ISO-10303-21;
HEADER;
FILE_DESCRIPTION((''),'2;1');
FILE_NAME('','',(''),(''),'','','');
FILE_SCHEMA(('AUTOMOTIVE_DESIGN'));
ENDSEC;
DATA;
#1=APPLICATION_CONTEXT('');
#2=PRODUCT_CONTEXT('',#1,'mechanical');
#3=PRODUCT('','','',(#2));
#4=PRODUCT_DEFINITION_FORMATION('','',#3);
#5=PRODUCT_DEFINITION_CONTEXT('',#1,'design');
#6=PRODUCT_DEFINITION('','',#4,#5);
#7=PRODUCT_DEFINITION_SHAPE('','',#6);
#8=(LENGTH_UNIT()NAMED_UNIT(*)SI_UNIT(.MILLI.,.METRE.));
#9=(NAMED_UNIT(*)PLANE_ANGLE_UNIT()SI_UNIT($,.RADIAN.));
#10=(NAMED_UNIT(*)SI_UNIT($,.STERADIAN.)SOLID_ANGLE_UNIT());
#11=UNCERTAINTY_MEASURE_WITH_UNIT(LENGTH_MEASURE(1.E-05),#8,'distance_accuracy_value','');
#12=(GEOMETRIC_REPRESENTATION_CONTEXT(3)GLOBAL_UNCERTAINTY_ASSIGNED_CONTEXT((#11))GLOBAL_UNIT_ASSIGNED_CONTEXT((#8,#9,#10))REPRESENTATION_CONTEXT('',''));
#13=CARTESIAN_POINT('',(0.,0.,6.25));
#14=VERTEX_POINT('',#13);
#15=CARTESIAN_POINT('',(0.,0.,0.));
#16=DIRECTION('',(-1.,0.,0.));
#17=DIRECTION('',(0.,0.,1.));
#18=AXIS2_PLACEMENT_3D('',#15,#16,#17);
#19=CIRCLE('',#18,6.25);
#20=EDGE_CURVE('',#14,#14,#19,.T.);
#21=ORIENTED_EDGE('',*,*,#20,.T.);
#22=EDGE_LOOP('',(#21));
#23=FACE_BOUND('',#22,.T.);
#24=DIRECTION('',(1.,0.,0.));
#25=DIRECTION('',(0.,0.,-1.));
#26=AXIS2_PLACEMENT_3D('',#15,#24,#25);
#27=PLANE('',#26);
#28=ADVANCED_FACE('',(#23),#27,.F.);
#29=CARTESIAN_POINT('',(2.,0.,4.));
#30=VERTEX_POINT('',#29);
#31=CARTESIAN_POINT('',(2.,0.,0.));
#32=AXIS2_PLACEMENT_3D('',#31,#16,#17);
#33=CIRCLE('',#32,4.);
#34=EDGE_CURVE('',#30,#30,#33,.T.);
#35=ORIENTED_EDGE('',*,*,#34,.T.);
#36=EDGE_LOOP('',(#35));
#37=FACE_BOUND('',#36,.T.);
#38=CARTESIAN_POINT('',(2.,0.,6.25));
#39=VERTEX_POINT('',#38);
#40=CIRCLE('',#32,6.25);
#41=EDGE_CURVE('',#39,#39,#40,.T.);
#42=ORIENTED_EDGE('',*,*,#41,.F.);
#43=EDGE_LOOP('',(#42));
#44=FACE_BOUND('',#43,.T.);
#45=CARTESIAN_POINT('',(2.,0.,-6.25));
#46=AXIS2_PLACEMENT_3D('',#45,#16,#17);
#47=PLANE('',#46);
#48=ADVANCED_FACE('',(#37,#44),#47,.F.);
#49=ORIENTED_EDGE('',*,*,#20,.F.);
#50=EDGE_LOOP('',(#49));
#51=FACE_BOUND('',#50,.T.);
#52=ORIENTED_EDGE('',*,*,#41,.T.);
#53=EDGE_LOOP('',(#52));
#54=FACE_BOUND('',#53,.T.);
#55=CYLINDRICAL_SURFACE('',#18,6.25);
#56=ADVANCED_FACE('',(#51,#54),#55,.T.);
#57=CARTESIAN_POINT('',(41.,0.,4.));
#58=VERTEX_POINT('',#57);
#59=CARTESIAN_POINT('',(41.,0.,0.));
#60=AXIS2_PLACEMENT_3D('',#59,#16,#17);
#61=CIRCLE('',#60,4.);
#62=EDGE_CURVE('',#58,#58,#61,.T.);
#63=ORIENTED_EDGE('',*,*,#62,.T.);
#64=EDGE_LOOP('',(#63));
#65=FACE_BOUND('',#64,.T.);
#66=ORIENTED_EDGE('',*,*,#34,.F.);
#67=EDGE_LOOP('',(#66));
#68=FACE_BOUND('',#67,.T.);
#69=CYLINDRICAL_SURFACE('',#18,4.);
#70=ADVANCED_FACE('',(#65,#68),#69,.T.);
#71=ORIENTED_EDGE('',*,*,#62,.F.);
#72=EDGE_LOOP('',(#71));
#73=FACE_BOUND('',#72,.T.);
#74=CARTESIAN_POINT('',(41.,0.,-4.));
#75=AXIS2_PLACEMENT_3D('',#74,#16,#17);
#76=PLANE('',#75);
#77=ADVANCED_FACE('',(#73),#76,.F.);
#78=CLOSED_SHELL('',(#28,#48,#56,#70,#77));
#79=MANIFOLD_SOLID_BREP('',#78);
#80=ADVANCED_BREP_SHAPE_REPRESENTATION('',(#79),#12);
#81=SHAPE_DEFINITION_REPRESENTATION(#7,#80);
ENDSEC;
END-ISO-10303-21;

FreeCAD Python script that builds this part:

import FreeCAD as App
import Part
import Sketcher

V = App.Vector
Q = App.Units.Quantity


def add_polygon(sketch, points):
    """Adds a closed chain of lines whose ends are joined by coincident constraints."""
    first, n = sketch.GeometryCount, len(points)
    for a, b in zip(points, points[1:] + points[:1]):
        sketch.addGeometry(Part.LineSegment(App.Vector(*a, 0), App.Vector(*b, 0)), False)
    for i in range(n):
        sketch.addConstraint(Sketcher.Constraint("Coincident", first + i, 2, first + (i + 1) % n, 1))

doc = App.newDocument("Part")
params = doc.addObject("Spreadsheet::Sheet", "Params")
for row, (alias, value) in enumerate([
    ("sketch1_width", "41 mm"),
    ("sketch1_width2", "39 mm"),
    ("sketch1_height", "4 mm"),
    ("sketch1_height2", "6.25 mm"),
    ("revolution_angle", "360 deg"),
], start=1):
    params.set(f"A{row}", alias)
    params.set(f"B{row}", "=" + value)
    params.setAlias(f"B{row}", alias)

body = doc.addObject("PartDesign::Body", "Body")

# Sketch on XZ plane
sketch1 = doc.addObject("Sketcher::SketchObject", "Sketch")
body.addObject(sketch1)
sketch1.AttachmentSupport = (doc.XZ_Plane, [""])
sketch1.MapMode = "FlatFace"
add_polygon(sketch1, [(0, -6.2), (0, 0), (41, 0), (41, -4), (2, -4), (2, -6.2)])  # lines 0-5
sketch1.addConstraint([
    Sketcher.Constraint("Vertical", 0),
    Sketcher.Constraint("Horizontal", 1),
    Sketcher.Constraint("Vertical", 2),
    Sketcher.Constraint("Horizontal", 3),
    Sketcher.Constraint("Vertical", 4),
    Sketcher.Constraint("Horizontal", 5),
    Sketcher.Constraint("Coincident", 0, 2, -1, 1),
    Sketcher.Constraint("DistanceX", 1, 1, 1, 2, Q("41 mm")),
    Sketcher.Constraint("DistanceX", 3, 2, 3, 1, Q("39 mm")),
    Sketcher.Constraint("DistanceY", 2, 2, 2, 1, Q("4 mm")),
    Sketcher.Constraint("DistanceY", 0, 1, 0, 2, Q("6.25 mm")),
])
sketch1.setExpression("Constraints[13]", "Params.sketch1_width")
sketch1.setExpression("Constraints[14]", "Params.sketch1_width2")
sketch1.setExpression("Constraints[15]", "Params.sketch1_height")
sketch1.setExpression("Constraints[16]", "Params.sketch1_height2")
revolution = doc.addObject("PartDesign::Revolution", "Revolution")
body.addObject(revolution)
revolution.Profile = sketch1
revolution.ReferenceAxis = (sketch1, ["H_Axis"])
revolution.setExpression("Angle", "Params.revolution_angle")

doc.recompute()
